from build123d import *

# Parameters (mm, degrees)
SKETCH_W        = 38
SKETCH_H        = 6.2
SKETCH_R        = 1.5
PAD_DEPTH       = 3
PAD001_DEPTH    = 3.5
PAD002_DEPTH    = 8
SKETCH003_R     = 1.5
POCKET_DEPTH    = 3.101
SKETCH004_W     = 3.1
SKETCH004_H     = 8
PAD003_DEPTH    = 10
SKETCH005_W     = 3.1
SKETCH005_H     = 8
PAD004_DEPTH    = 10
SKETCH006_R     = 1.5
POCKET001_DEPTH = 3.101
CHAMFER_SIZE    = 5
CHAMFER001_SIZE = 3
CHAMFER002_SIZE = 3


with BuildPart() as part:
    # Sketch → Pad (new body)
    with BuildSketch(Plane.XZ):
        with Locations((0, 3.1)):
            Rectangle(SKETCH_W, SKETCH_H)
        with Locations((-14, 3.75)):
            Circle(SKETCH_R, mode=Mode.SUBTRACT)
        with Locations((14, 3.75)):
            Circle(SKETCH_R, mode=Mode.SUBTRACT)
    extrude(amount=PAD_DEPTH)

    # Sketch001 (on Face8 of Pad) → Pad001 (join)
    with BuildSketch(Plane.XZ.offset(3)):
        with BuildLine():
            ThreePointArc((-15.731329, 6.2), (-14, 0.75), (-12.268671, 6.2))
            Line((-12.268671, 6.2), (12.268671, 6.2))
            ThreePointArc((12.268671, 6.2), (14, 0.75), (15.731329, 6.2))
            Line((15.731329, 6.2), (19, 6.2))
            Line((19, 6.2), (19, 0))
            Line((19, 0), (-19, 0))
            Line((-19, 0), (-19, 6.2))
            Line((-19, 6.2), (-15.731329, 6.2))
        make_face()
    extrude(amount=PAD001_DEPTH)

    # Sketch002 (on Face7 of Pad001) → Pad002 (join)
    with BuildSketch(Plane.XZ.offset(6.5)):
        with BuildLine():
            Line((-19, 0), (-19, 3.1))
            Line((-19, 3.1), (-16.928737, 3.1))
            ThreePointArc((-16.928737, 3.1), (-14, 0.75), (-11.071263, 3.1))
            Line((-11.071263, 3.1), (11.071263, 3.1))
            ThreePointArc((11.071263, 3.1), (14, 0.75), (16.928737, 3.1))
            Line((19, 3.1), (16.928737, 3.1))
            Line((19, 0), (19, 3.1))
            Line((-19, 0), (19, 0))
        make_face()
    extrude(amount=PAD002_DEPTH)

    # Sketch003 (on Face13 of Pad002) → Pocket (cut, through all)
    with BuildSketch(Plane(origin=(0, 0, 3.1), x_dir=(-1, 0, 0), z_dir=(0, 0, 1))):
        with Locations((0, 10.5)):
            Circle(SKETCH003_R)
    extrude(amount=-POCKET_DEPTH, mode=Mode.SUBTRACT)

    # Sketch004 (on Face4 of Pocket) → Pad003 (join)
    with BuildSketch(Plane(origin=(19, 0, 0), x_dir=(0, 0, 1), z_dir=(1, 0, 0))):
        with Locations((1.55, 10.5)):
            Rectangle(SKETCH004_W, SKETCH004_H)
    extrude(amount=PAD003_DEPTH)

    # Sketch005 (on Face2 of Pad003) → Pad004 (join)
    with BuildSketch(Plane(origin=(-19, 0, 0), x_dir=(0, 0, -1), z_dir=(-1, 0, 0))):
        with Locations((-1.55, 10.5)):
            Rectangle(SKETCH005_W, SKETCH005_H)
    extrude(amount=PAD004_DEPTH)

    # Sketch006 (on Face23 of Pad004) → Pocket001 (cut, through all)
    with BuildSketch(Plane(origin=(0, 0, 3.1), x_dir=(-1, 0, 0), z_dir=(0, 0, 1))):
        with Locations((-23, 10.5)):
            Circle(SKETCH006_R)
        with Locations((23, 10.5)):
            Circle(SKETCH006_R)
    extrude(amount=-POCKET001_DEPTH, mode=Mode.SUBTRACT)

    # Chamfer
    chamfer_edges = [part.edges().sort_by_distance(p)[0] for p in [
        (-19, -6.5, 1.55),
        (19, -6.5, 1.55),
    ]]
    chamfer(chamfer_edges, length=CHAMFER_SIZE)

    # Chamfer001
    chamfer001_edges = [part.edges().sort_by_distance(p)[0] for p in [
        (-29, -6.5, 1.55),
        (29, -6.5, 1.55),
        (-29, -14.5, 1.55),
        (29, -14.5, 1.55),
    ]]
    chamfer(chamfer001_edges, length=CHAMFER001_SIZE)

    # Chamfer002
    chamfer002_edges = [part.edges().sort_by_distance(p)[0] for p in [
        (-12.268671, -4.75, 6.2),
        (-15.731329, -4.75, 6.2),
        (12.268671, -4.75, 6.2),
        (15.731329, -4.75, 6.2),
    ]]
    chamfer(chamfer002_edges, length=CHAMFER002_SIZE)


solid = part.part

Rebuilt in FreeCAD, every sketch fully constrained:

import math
import FreeCAD as App
import Part
import Sketcher

V = App.Vector


def edges_at(feature, points):
    """Names of the edges that pass closest to the given points."""
    edges = feature.Shape.Edges
    near = lambda p: min(range(len(edges)), key=lambda i: edges[i].distToShape(Part.Vertex(*p))[0])
    return sorted({f"Edge{near(p) + 1}" for p in points})


def add_polygon(sketch, points):
    """Adds a closed chain of lines whose ends are joined by coincident constraints."""
    first, n = sketch.GeometryCount, len(points)
    for a, b in zip(points, points[1:] + points[:1]):
        sketch.addGeometry(Part.LineSegment(App.Vector(*a, 0), App.Vector(*b, 0)), False)
    for i in range(n):
        sketch.addConstraint(Sketcher.Constraint("Coincident", first + i, 2, first + (i + 1) % n, 1))

doc = App.newDocument("Part")
body = doc.addObject("PartDesign::Body", "Body")

sketch1 = body.newObject("Sketcher::SketchObject", "Sketch")
sketch1.AttachmentSupport = (doc.getObject("XZ_Plane"), [""])
sketch1.MapMode = "FlatFace"
add_polygon(sketch1, [(-19, 6.2), (-19, 0), (19, 0), (19, 6.2)])
sketch1.addGeometry(Part.Circle(V(-14, 3.75, 0), V(0, 0, 1), 1.5), False)
sketch1.addGeometry(Part.Circle(V(14, 3.75, 0), V(0, 0, 1), 1.5), False)
sketch1.addConstraint(Sketcher.Constraint("Vertical", 0))
sketch1.addConstraint(Sketcher.Constraint("Horizontal", 1))
sketch1.addConstraint(Sketcher.Constraint("Vertical", 2))
sketch1.addConstraint(Sketcher.Constraint("Horizontal", 3))
sketch1.addConstraint(Sketcher.Constraint("Equal", 4, 5))
sketch1.addConstraint(Sketcher.Constraint("Symmetric", 0, 2, 1, 2, -1, 1))
sketch1.addConstraint(Sketcher.Constraint("Symmetric", 4, 3, 5, 3, -2))
sketch1.addConstraint(Sketcher.Constraint("Diameter", 4, 3.0))
sketch1.addConstraint(Sketcher.Constraint("DistanceX", 1, 1, 1, 2, 38.0))
sketch1.addConstraint(Sketcher.Constraint("DistanceY", 0, 2, 0, 1, 6.2))
sketch1.addConstraint(Sketcher.Constraint("DistanceX", 4, 3, -1, 1, 14.0))
sketch1.addConstraint(Sketcher.Constraint("DistanceY", -1, 1, 4, 3, 3.75))
pad1 = body.newObject("PartDesign::Pad", "Pad")
pad1.Profile = sketch1
pad1.Length = 3

sketch2 = body.newObject("Sketcher::SketchObject", "Sketch001")
sketch2.AttachmentSupport = (doc.getObject("XZ_Plane"), [""])
sketch2.MapMode = "FlatFace"
sketch2.AttachmentOffset = App.Placement(V(0, 0, 3), App.Rotation())
sketch2.addGeometry(Part.ArcOfCircle(Part.Circle(V(-14, 3.75, 0), V(0, 0, 1), 3), math.radians(125.247508), math.radians(414.752492)), False)
sketch2.addGeometry(Part.LineSegment(V(-15.731329, 6.2, 0), V(-19, 6.2, 0)), False)
sketch2.addGeometry(Part.LineSegment(V(-19, 6.2, 0), V(-19, 0, 0)), False)
sketch2.addGeometry(Part.LineSegment(V(-19, 0, 0), V(19, 0, 0)), False)
sketch2.addGeometry(Part.LineSegment(V(19, 0, 0), V(19, 6.2, 0)), False)
sketch2.addGeometry(Part.LineSegment(V(19, 6.2, 0), V(15.731329, 6.2, 0)), False)
sketch2.addGeometry(Part.ArcOfCircle(Part.Circle(V(14, 3.75, 0), V(0, 0, 1), 3), math.radians(125.247508), math.radians(414.752492)), False)
sketch2.addGeometry(Part.LineSegment(V(12.268671, 6.2, 0), V(-12.268671, 6.2, 0)), False)
sketch2.addConstraint(Sketcher.Constraint("Coincident", 0, 1, 1, 1))
sketch2.addConstraint(Sketcher.Constraint("Coincident", 1, 2, 2, 1))
sketch2.addConstraint(Sketcher.Constraint("Coincident", 2, 2, 3, 1))
sketch2.addConstraint(Sketcher.Constraint("Coincident", 3, 2, 4, 1))
sketch2.addConstraint(Sketcher.Constraint("Coincident", 4, 2, 5, 1))
sketch2.addConstraint(Sketcher.Constraint("Coincident", 5, 2, 6, 2))
sketch2.addConstraint(Sketcher.Constraint("Coincident", 6, 1, 7, 1))
sketch2.addConstraint(Sketcher.Constraint("Coincident", 7, 2, 0, 2))
sketch2.addConstraint(Sketcher.Constraint("Horizontal", 1))
sketch2.addConstraint(Sketcher.Constraint("Vertical", 2))
sketch2.addConstraint(Sketcher.Constraint("Horizontal", 3))
sketch2.addConstraint(Sketcher.Constraint("Vertical", 4))
sketch2.addConstraint(Sketcher.Constraint("Horizontal", 5))
sketch2.addConstraint(Sketcher.Constraint("Horizontal", 7))
sketch2.addConstraint(Sketcher.Constraint("Equal", 0, 6))
sketch2.addConstraint(Sketcher.Constraint("Symmetric", 2, 2, 3, 2, -1, 1))
sketch2.addConstraint(Sketcher.Constraint("Symmetric", 0, 3, 6, 3, -2))
sketch2.addConstraint(Sketcher.Constraint("Horizontal", 1, 2, 4, 2))
sketch2.addConstraint(Sketcher.Constraint("Horizontal", 5, 2, 6, 1))
sketch2.addConstraint(Sketcher.Constraint("Radius", 0, 3.0))
sketch2.addConstraint(Sketcher.Constraint("DistanceX", 3, 1, 3, 2, 38.0))
sketch2.addConstraint(Sketcher.Constraint("DistanceY", 2, 2, 2, 1, 6.2))
sketch2.addConstraint(Sketcher.Constraint("DistanceX", 0, 3, -1, 1, 14.0))
sketch2.addConstraint(Sketcher.Constraint("DistanceY", -1, 1, 0, 3, 3.75))
pad2 = body.newObject("PartDesign::Pad", "Pad001")
pad2.Profile = sketch2
pad2.Length = 3.5

sketch3 = body.newObject("Sketcher::SketchObject", "Sketch002")
sketch3.AttachmentSupport = (doc.getObject("XZ_Plane"), [""])
sketch3.MapMode = "FlatFace"
sketch3.AttachmentOffset = App.Placement(V(0, 0, 6.5), App.Rotation())
sketch3.addGeometry(Part.LineSegment(V(-19, 3.1, 0), V(-19, 0, 0)), False)
sketch3.addGeometry(Part.LineSegment(V(-19, 0, 0), V(19, 0, 0)), False)
sketch3.addGeometry(Part.LineSegment(V(19, 0, 0), V(19, 3.1, 0)), False)
sketch3.addGeometry(Part.LineSegment(V(19, 3.1, 0), V(16.928737, 3.1, 0)), False)
sketch3.addGeometry(Part.ArcOfCircle(Part.Circle(V(14, 3.75, 0), V(0, 0, 1), 3), math.radians(-167.486673), math.radians(-12.513327)), False)
sketch3.addGeometry(Part.LineSegment(V(11.071263, 3.1, 0), V(-11.071263, 3.1, 0)), False)
sketch3.addGeometry(Part.ArcOfCircle(Part.Circle(V(-14, 3.75, 0), V(0, 0, 1), 3), math.radians(-167.486673), math.radians(-12.513327)), False)
sketch3.addGeometry(Part.LineSegment(V(-16.928737, 3.1, 0), V(-19, 3.1, 0)), False)
sketch3.addConstraint(Sketcher.Constraint("Coincident", 0, 2, 1, 1))
sketch3.addConstraint(Sketcher.Constraint("Coincident", 1, 2, 2, 1))
sketch3.addConstraint(Sketcher.Constraint("Coincident", 2, 2, 3, 1))
sketch3.addConstraint(Sketcher.Constraint("Coincident", 3, 2, 4, 2))
sketch3.addConstraint(Sketcher.Constraint("Coincident", 4, 1, 5, 1))
sketch3.addConstraint(Sketcher.Constraint("Coincident", 5, 2, 6, 2))
sketch3.addConstraint(Sketcher.Constraint("Coincident", 6, 1, 7, 1))
sketch3.addConstraint(Sketcher.Constraint("Coincident", 7, 2, 0, 1))
sketch3.addConstraint(Sketcher.Constraint("Vertical", 0))
sketch3.addConstraint(Sketcher.Constraint("Horizontal", 1))
sketch3.addConstraint(Sketcher.Constraint("Vertical", 2))
sketch3.addConstraint(Sketcher.Constraint("Horizontal", 3))
sketch3.addConstraint(Sketcher.Constraint("Horizontal", 5))
sketch3.addConstraint(Sketcher.Constraint("Horizontal", 7))
sketch3.addConstraint(Sketcher.Constraint("Equal", 4, 6))
sketch3.addConstraint(Sketcher.Constraint("Symmetric", 0, 2, 1, 2, -1, 1))
sketch3.addConstraint(Sketcher.Constraint("Symmetric", 4, 3, 6, 3, -2))
sketch3.addConstraint(Sketcher.Constraint("Horizontal", 3, 2, 4, 1))
sketch3.addConstraint(Sketcher.Constraint("Horizontal", 5, 2, 6, 1))
sketch3.addConstraint(Sketcher.Constraint("Radius", 4, 3.0))
sketch3.addConstraint(Sketcher.Constraint("DistanceX", 1, 1, 1, 2, 38.0))
sketch3.addConstraint(Sketcher.Constraint("DistanceY", 0, 2, 0, 1, 3.1))
sketch3.addConstraint(Sketcher.Constraint("DistanceX", -1, 1, 4, 3, 14.0))
sketch3.addConstraint(Sketcher.Constraint("DistanceY", -1, 1, 4, 3, 3.75))
pad3 = body.newObject("PartDesign::Pad", "Pad002")
pad3.Profile = sketch3
pad3.Length = 8

sketch4 = body.newObject("Sketcher::SketchObject", "Sketch003")
sketch4.AttachmentSupport = (doc.getObject("XY_Plane"), [""])
sketch4.MapMode = "FlatFace"
sketch4.AttachmentOffset = App.Placement(V(0, 0, 3.1), App.Rotation())
sketch4.addGeometry(Part.Circle(V(0, -10.5, 0), V(0, 0, 1), 1.5), False)
sketch4.addConstraint(Sketcher.Constraint("PointOnObject", 0, 3, -2))
sketch4.addConstraint(Sketcher.Constraint("Diameter", 0, 3.0))
sketch4.addConstraint(Sketcher.Constraint("DistanceY", 0, 3, -1, 1, 10.5))
pocket1 = body.newObject("PartDesign::Pocket", "Pocket")
pocket1.Profile = sketch4
pocket1.Type = "ThroughAll"

sketch5 = body.newObject("Sketcher::SketchObject", "Sketch004")
sketch5.AttachmentSupport = (doc.getObject("YZ_Plane"), [""])
sketch5.MapMode = "FlatFace"
sketch5.AttachmentOffset = App.Placement(V(0, 0, 19), App.Rotation())
add_polygon(sketch5, [(-14.5, 0), (-6.5, 0), (-6.5, 3.1), (-14.5, 3.1)])
sketch5.addConstraint(Sketcher.Constraint("Horizontal", 0))
sketch5.addConstraint(Sketcher.Constraint("Vertical", 1))
sketch5.addConstraint(Sketcher.Constraint("Horizontal", 2))
sketch5.addConstraint(Sketcher.Constraint("Vertical", 3))
sketch5.addConstraint(Sketcher.Constraint("PointOnObject", 0, 2, -1))
sketch5.addConstraint(Sketcher.Constraint("DistanceX", 0, 1, 0, 2, 8.0))
sketch5.addConstraint(Sketcher.Constraint("DistanceY", 1, 1, 1, 2, 3.1))
sketch5.addConstraint(Sketcher.Constraint("DistanceX", 0, 2, -1, 1, 6.5))
pad4 = body.newObject("PartDesign::Pad", "Pad003")
pad4.Profile = sketch5
pad4.Length = 10

sketch6 = body.newObject("Sketcher::SketchObject", "Sketch005")
sketch6.AttachmentSupport = (doc.getObject("YZ_Plane"), [""])
sketch6.MapMode = "FlatFace"
sketch6.AttachmentOffset = App.Placement(V(0, 0, -19), App.Rotation())
add_polygon(sketch6, [(-14.5, 3.1), (-6.5, 3.1), (-6.5, 0), (-14.5, 0)])
sketch6.addConstraint(Sketcher.Constraint("Horizontal", 0))
sketch6.addConstraint(Sketcher.Constraint("Vertical", 1))
sketch6.addConstraint(Sketcher.Constraint("Horizontal", 2))
sketch6.addConstraint(Sketcher.Constraint("Vertical", 3))
sketch6.addConstraint(Sketcher.Constraint("PointOnObject", 1, 2, -1))
sketch6.addConstraint(Sketcher.Constraint("DistanceX", 0, 1, 0, 2, 8.0))
sketch6.addConstraint(Sketcher.Constraint("DistanceY", 1, 2, 1, 1, 3.1))
sketch6.addConstraint(Sketcher.Constraint("DistanceX", 0, 2, -1, 1, 6.5))
pad5 = body.newObject("PartDesign::Pad", "Pad004")
pad5.Profile = sketch6
pad5.Length = 10
pad5.Reversed = True

sketch7 = body.newObject("Sketcher::SketchObject", "Sketch006")
sketch7.AttachmentSupport = (doc.getObject("XY_Plane"), [""])
sketch7.MapMode = "FlatFace"
sketch7.AttachmentOffset = App.Placement(V(0, 0, 3.1), App.Rotation())
sketch7.addGeometry(Part.Circle(V(23, -10.5, 0), V(0, 0, 1), 1.5), False)
sketch7.addGeometry(Part.Circle(V(-23, -10.5, 0), V(0, 0, 1), 1.5), False)
sketch7.addConstraint(Sketcher.Constraint("Equal", 0, 1))
sketch7.addConstraint(Sketcher.Constraint("Symmetric", 0, 3, 1, 3, -2))
sketch7.addConstraint(Sketcher.Constraint("Diameter", 0, 3.0))
sketch7.addConstraint(Sketcher.Constraint("DistanceX", -1, 1, 0, 3, 23.0))
sketch7.addConstraint(Sketcher.Constraint("DistanceY", 0, 3, -1, 1, 10.5))
pocket2 = body.newObject("PartDesign::Pocket", "Pocket001")
pocket2.Profile = sketch7
pocket2.Type = "ThroughAll"
doc.recompute()

chamfer = body.newObject("PartDesign::Chamfer", "Chamfer")
chamfer.Base = (pocket2, edges_at(pocket2, [(-19, -6.5, 1.55), (19, -6.5, 1.55)]))
chamfer.Size = 5
doc.recompute()

chamfer2 = body.newObject("PartDesign::Chamfer", "Chamfer001")
chamfer2.Base = (chamfer, edges_at(chamfer, [
    (-29, -6.5, 1.55),
    (29, -6.5, 1.55),
    (-29, -14.5, 1.55),
    (29, -14.5, 1.55),
]))
chamfer2.Size = 3
doc.recompute()

chamfer3 = body.newObject("PartDesign::Chamfer", "Chamfer002")
chamfer3.Base = (chamfer2, edges_at(chamfer2, [
    (-12.269, -4.75, 6.2),
    (-15.731, -4.75, 6.2),
    (12.269, -4.75, 6.2),
    (15.731, -4.75, 6.2),
]))
chamfer3.Size = 3

doc.recompute()
